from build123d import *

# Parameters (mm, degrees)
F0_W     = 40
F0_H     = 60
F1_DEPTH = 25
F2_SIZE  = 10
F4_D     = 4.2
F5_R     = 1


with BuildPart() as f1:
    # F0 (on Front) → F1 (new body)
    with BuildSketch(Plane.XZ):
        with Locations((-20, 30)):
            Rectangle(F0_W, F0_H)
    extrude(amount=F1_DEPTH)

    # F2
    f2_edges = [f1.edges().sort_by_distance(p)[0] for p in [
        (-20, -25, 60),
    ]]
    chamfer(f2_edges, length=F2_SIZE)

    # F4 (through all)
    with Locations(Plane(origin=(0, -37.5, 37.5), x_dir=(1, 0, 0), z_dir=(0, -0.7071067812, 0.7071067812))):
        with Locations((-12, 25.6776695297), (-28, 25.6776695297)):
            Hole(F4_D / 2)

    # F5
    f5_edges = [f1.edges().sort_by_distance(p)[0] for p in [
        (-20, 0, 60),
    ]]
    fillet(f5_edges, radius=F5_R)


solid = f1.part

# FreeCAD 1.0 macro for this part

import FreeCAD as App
import Part
import Sketcher

V = App.Vector


def edges_at(feature, points):
    """Names of the edges that pass closest to the given points."""
    edges = feature.Shape.Edges
    near = lambda p: min(range(len(edges)), key=lambda i: edges[i].distToShape(Part.Vertex(*p))[0])
    return sorted({f"Edge{near(p) + 1}" for p in points})

doc = App.newDocument("Part")
body = doc.addObject("PartDesign::Body", "Body")

# Sketch on XZ plane
sketch1 = doc.addObject("Sketcher::SketchObject", "Sketch")
body.addObject(sketch1)
sketch1.AttachmentSupport = (doc.XZ_Plane, [""])
sketch1.MapMode = "FlatFace"
sketch1.addGeometry(Part.LineSegment(V(-40, 60, 0), V(-40, 0, 0)), False)
sketch1.addGeometry(Part.LineSegment(V(-40, 0, 0), V(0, 0, 0)), False)
sketch1.addGeometry(Part.LineSegment(V(0, 0, 0), V(0, 60, 0)), False)
sketch1.addGeometry(Part.LineSegment(V(0, 60, 0), V(-40, 60, 0)), False)
sketch1.addConstraint(Sketcher.Constraint("Coincident", 0, 2, 1, 1))
sketch1.addConstraint(Sketcher.Constraint("Coincident", 1, 2, 2, 1))
sketch1.addConstraint(Sketcher.Constraint("Coincident", 2, 2, 3, 1))
sketch1.addConstraint(Sketcher.Constraint("Coincident", 3, 2, 0, 1))
sketch1.addConstraint(Sketcher.Constraint("Vertical", 0))
sketch1.addConstraint(Sketcher.Constraint("Horizontal", 1))
sketch1.addConstraint(Sketcher.Constraint("Vertical", 2))
sketch1.addConstraint(Sketcher.Constraint("Horizontal", 3))
sketch1.addConstraint(Sketcher.Constraint("Coincident", 1, 2, -1, 1))
sketch1.addConstraint(Sketcher.Constraint("DistanceX", 1, 1, 1, 2, 40.0))
sketch1.addConstraint(Sketcher.Constraint("DistanceY", 0, 2, 0, 1, 60.0))
pad1 = doc.addObject("PartDesign::Pad", "Pad")
body.addObject(pad1)
pad1.Profile = sketch1
pad1.Length = 25
doc.recompute()

chamfer = doc.addObject("PartDesign::Chamfer", "Chamfer")
body.addObject(chamfer)
chamfer.Base = (pad1, edges_at(pad1, [(-20, -25, 60)]))
chamfer.Size = 10

# Sketch on an angled plane
sketch2 = doc.addObject("Sketcher::SketchObject", "Sketch001")
body.addObject(sketch2)
sketch2.Placement = App.Placement(V(0, -37.5, 37.5), App.Rotation(V(1, 0, 0), V(0, 0.707106781, 0.707106781), V(0, -0.707106781, 0.707106781), "ZXY"))
sketch2.addGeometry(Part.Circle(V(-12, 25.67767, 0), V(0, 0, 1), 2.1), False)
sketch2.addGeometry(Part.Circle(V(-28, 25.67767, 0), V(0, 0, 1), 2.1), False)
sketch2.addConstraint(Sketcher.Constraint("Equal", 0, 1))
sketch2.addConstraint(Sketcher.Constraint("Horizontal", 0, 3, 1, 3))
sketch2.addConstraint(Sketcher.Constraint("Diameter", 0, 4.2))
sketch2.addConstraint(Sketcher.Constraint("DistanceX", 0, 3, -1, 1, 12.0))
sketch2.addConstraint(Sketcher.Constraint("DistanceX", 1, 3, -1, 1, 28.0))
sketch2.addConstraint(Sketcher.Constraint("DistanceY", -1, 1, 0, 3, 25.67767))
doc.recompute()
hole = doc.addObject("PartDesign::Hole", "Hole")
body.addObject(hole)
hole.Profile = sketch2
hole.ThreadType = "None"
hole.Diameter = 4.2
hole.DepthType = "ThroughAll"
doc.recompute()

fillet = doc.addObject("PartDesign::Fillet", "Fillet")
body.addObject(fillet)
fillet.Base = (hole, edges_at(hole, [(-20, 0, 60)]))
fillet.Radius = 1

doc.recompute()
